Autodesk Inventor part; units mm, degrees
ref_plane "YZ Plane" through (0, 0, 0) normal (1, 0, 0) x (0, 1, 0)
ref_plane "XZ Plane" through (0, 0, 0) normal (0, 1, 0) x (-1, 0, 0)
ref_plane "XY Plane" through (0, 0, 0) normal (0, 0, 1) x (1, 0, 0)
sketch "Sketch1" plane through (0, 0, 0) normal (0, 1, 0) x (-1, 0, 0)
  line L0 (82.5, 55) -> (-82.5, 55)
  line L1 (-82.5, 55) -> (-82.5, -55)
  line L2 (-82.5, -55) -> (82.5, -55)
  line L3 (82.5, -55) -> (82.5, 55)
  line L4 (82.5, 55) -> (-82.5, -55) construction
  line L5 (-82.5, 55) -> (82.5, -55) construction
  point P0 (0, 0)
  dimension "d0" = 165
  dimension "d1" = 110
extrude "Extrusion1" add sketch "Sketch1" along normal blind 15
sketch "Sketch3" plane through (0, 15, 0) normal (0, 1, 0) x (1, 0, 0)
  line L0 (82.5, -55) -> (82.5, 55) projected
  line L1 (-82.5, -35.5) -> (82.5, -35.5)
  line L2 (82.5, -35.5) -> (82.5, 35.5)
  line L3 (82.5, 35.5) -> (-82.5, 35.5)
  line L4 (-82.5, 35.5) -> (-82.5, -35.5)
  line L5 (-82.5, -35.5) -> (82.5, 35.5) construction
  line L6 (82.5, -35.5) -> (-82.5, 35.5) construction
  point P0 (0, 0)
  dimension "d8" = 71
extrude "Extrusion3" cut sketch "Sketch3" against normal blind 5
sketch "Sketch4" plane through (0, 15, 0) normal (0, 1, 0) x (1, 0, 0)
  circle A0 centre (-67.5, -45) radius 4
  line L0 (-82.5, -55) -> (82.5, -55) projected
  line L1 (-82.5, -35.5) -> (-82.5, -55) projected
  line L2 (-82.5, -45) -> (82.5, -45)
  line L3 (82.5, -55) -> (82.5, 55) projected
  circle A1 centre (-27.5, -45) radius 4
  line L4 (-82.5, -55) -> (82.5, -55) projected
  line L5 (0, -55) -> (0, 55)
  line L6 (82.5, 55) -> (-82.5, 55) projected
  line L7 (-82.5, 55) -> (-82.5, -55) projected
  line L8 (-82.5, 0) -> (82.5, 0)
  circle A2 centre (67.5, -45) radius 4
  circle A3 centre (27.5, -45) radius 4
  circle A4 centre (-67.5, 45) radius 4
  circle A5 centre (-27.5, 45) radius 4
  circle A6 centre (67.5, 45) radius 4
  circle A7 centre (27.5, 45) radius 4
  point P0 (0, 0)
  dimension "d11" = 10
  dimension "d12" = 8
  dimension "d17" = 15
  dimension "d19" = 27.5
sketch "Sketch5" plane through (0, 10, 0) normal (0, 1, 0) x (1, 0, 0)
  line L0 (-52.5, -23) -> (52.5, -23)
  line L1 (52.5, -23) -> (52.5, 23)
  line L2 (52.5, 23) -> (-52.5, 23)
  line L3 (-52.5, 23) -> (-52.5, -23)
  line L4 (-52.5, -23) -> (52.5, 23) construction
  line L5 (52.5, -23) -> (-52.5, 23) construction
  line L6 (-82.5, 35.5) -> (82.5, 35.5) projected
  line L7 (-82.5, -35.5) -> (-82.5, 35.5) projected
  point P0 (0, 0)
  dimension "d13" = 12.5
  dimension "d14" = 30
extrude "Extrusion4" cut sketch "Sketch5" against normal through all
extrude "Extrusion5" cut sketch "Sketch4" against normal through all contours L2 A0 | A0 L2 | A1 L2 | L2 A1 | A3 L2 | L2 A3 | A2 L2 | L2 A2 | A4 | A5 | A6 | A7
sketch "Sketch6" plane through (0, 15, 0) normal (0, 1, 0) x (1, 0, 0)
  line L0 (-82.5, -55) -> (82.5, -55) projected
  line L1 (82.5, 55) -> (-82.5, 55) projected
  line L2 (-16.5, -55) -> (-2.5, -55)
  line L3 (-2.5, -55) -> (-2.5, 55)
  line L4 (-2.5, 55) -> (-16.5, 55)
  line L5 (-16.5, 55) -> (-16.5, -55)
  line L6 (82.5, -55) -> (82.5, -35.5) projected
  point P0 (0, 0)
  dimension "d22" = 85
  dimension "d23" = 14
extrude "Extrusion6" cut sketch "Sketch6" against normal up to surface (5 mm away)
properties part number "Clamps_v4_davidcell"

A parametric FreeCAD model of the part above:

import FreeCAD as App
import Part
import Sketcher

doc = App.newDocument("Part")
body = doc.addObject("PartDesign::Body", "Body")

sketch1 = body.newObject("Sketcher::SketchObject", "Sketch")
sketch1.AttachmentSupport = (doc.getObject("XZ_Plane"), [""])
sketch1.MapMode = "FlatFace"
sketch1.addGeometry(Part.LineSegment(App.Vector(-82.5, -55, 0), App.Vector(-82.5, 55, 0)), False)
sketch1.addGeometry(Part.LineSegment(App.Vector(-82.5, 55, 0), App.Vector(82.5, 55, 0)), False)
sketch1.addGeometry(Part.LineSegment(App.Vector(82.5, 55, 0), App.Vector(82.5, -55, 0)), False)
sketch1.addGeometry(Part.LineSegment(App.Vector(82.5, -55, 0), App.Vector(-82.5, -55, 0)), False)
sketch1.addConstraint(Sketcher.Constraint("Coincident", 0, 2, 1, 1))
sketch1.addConstraint(Sketcher.Constraint("Coincident", 1, 2, 2, 1))
sketch1.addConstraint(Sketcher.Constraint("Coincident", 2, 2, 3, 1))
sketch1.addConstraint(Sketcher.Constraint("Coincident", 3, 2, 0, 1))
sketch1.addConstraint(Sketcher.Constraint("Vertical", 0))
sketch1.addConstraint(Sketcher.Constraint("Horizontal", 1))
sketch1.addConstraint(Sketcher.Constraint("Vertical", 2))
sketch1.addConstraint(Sketcher.Constraint("Horizontal", 3))
sketch1.addConstraint(Sketcher.Constraint("Symmetric", 0, 2, 2, 2, -1, 1))
sketch1.addConstraint(Sketcher.Constraint("DistanceX", 1, 1, 1, 2, 165.0))
sketch1.addConstraint(Sketcher.Constraint("DistanceY", 0, 1, 0, 2, 110.0))
pad1 = body.newObject("PartDesign::Pad", "Pad")
pad1.Profile = sketch1
pad1.Length = 15
pad1.Reversed = True

sketch2 = body.newObject("Sketcher::SketchObject", "Sketch001")
sketch2.AttachmentSupport = (doc.getObject("XZ_Plane"), [""])
sketch2.MapMode = "FlatFace"
sketch2.AttachmentOffset = App.Placement(App.Vector(0, 0, -15), App.Rotation())
sketch2.addGeometry(Part.LineSegment(App.Vector(-82.5, 35.5, 0), App.Vector(82.5, 35.5, 0)), False)
sketch2.addGeometry(Part.LineSegment(App.Vector(82.5, 35.5, 0), App.Vector(82.5, -35.5, 0)), False)
sketch2.addGeometry(Part.LineSegment(App.Vector(82.5, -35.5, 0), App.Vector(-82.5, -35.5, 0)), False)
sketch2.addGeometry(Part.LineSegment(App.Vector(-82.5, -35.5, 0), App.Vector(-82.5, 35.5, 0)), False)
sketch2.addConstraint(Sketcher.Constraint("Coincident", 0, 2, 1, 1))
sketch2.addConstraint(Sketcher.Constraint("Coincident", 1, 2, 2, 1))
sketch2.addConstraint(Sketcher.Constraint("Coincident", 2, 2, 3, 1))
sketch2.addConstraint(Sketcher.Constraint("Coincident", 3, 2, 0, 1))
sketch2.addConstraint(Sketcher.Constraint("Horizontal", 0))
sketch2.addConstraint(Sketcher.Constraint("Vertical", 1))
sketch2.addConstraint(Sketcher.Constraint("Horizontal", 2))
sketch2.addConstraint(Sketcher.Constraint("Vertical", 3))
sketch2.addConstraint(Sketcher.Constraint("Symmetric", 0, 2, 2, 2, -1, 1))
sketch2.addConstraint(Sketcher.Constraint("DistanceY", 1, 2, 1, 1, 71.0))
sketch2.addConstraint(Sketcher.Constraint("DistanceX", 0, 1, 0, 2, 165.0))
pocket1 = body.newObject("PartDesign::Pocket", "Pocket")
pocket1.Profile = sketch2
pocket1.Length = 5
pocket1.Reversed = True

sketch3 = body.newObject("Sketcher::SketchObject", "Sketch002")
sketch3.AttachmentSupport = (doc.getObject("XZ_Plane"), [""])
sketch3.MapMode = "FlatFace"
sketch3.AttachmentOffset = App.Placement(App.Vector(0, 0, -10), App.Rotation())
sketch3.addGeometry(Part.LineSegment(App.Vector(-52.5, -23, 0), App.Vector(-52.5, 23, 0)), False)
sketch3.addGeometry(Part.LineSegment(App.Vector(-52.5, 23, 0), App.Vector(52.5, 23, 0)), False)
sketch3.addGeometry(Part.LineSegment(App.Vector(52.5, 23, 0), App.Vector(52.5, -23, 0)), False)
sketch3.addGeometry(Part.LineSegment(App.Vector(52.5, -23, 0), App.Vector(-52.5, -23, 0)), False)
sketch3.addConstraint(Sketcher.Constraint("Coincident", 0, 2, 1, 1))
sketch3.addConstraint(Sketcher.Constraint("Coincident", 1, 2, 2, 1))
sketch3.addConstraint(Sketcher.Constraint("Coincident", 2, 2, 3, 1))
sketch3.addConstraint(Sketcher.Constraint("Coincident", 3, 2, 0, 1))
sketch3.addConstraint(Sketcher.Constraint("Vertical", 0))
sketch3.addConstraint(Sketcher.Constraint("Horizontal", 1))
sketch3.addConstraint(Sketcher.Constraint("Vertical", 2))
sketch3.addConstraint(Sketcher.Constraint("Horizontal", 3))
sketch3.addConstraint(Sketcher.Constraint("Symmetric", 0, 2, 2, 2, -1, 1))
sketch3.addConstraint(Sketcher.Constraint("DistanceX", 1, 1, 1, 2, 105.0))
sketch3.addConstraint(Sketcher.Constraint("DistanceY", 0, 1, 0, 2, 46.0))
pocket2 = body.newObject("PartDesign::Pocket", "Pocket001")
pocket2.Profile = sketch3
pocket2.Type = "ThroughAll"
pocket2.Reversed = True

sketch4 = body.newObject("Sketcher::SketchObject", "Sketch003")
sketch4.AttachmentSupport = (doc.getObject("XZ_Plane"), [""])
sketch4.MapMode = "FlatFace"
sketch4.AttachmentOffset = App.Placement(App.Vector(0, 0, -15), App.Rotation())
sketch4.addGeometry(Part.Circle(App.Vector(-67.5, 45, 0), App.Vector(0, 0, 1), 4), False)
sketch4.addGeometry(Part.Circle(App.Vector(-27.5, 45, 0), App.Vector(0, 0, 1), 4), False)
sketch4.addGeometry(Part.Circle(App.Vector(27.5, 45, 0), App.Vector(0, 0, 1), 4), False)
sketch4.addGeometry(Part.Circle(App.Vector(67.5, 45, 0), App.Vector(0, 0, 1), 4), False)
sketch4.addGeometry(Part.Circle(App.Vector(-67.5, -45, 0), App.Vector(0, 0, 1), 4), False)
sketch4.addGeometry(Part.Circle(App.Vector(-27.5, -45, 0), App.Vector(0, 0, 1), 4), False)
sketch4.addGeometry(Part.Circle(App.Vector(67.5, -45, 0), App.Vector(0, 0, 1), 4), False)
sketch4.addGeometry(Part.Circle(App.Vector(27.5, -45, 0), App.Vector(0, 0, 1), 4), False)
sketch4.addConstraint(Sketcher.Constraint("Equal", 0, 1))
sketch4.addConstraint(Sketcher.Constraint("Equal", 1, 2))
sketch4.addConstraint(Sketcher.Constraint("Equal", 2, 3))
sketch4.addConstraint(Sketcher.Constraint("Equal", 3, 4))
sketch4.addConstraint(Sketcher.Constraint("Equal", 4, 5))
sketch4.addConstraint(Sketcher.Constraint("Equal", 5, 6))
sketch4.addConstraint(Sketcher.Constraint("Equal", 6, 7))
sketch4.addConstraint(Sketcher.Constraint("Symmetric", 3, 3, 4, 3, -1, 1))
sketch4.addConstraint(Sketcher.Constraint("Symmetric", 2, 3, 5, 3, -1, 1))
sketch4.addConstraint(Sketcher.Constraint("Symmetric", 0, 3, 6, 3, -1, 1))
sketch4.addConstraint(Sketcher.Constraint("Symmetric", 1, 3, 7, 3, -1, 1))
sketch4.addConstraint(Sketcher.Constraint("Symmetric", 1, 3, 2, 3, -2))
sketch4.addConstraint(Sketcher.Constraint("Symmetric", 0, 3, 3, 3, -2))
sketch4.addConstraint(Sketcher.Constraint("Horizontal", 0, 3, 1, 3))
sketch4.addConstraint(Sketcher.Constraint("Diameter", 0, 8.0))
sketch4.addConstraint(Sketcher.Constraint("DistanceX", 1, 3, -1, 1, 27.5))
sketch4.addConstraint(Sketcher.Constraint("DistanceY", -1, 1, 0, 3, 45.0))
sketch4.addConstraint(Sketcher.Constraint("DistanceX", 0, 3, 1, 3, 40.0))
pocket3 = body.newObject("PartDesign::Pocket", "Pocket002")
pocket3.Profile = sketch4
pocket3.Type = "ThroughAll"
pocket3.Reversed = True

sketch5 = body.newObject("Sketcher::SketchObject", "Sketch004")
sketch5.AttachmentSupport = (doc.getObject("XZ_Plane"), [""])
sketch5.MapMode = "FlatFace"
sketch5.AttachmentOffset = App.Placement(App.Vector(0, 0, -15), App.Rotation())
sketch5.addGeometry(Part.LineSegment(App.Vector(-16.5, -55, 0), App.Vector(-16.5, 55, 0)), False)
sketch5.addGeometry(Part.LineSegment(App.Vector(-16.5, 55, 0), App.Vector(-2.5, 55, 0)), False)
sketch5.addGeometry(Part.LineSegment(App.Vector(-2.5, 55, 0), App.Vector(-2.5, -55, 0)), False)
sketch5.addGeometry(Part.LineSegment(App.Vector(-2.5, -55, 0), App.Vector(-16.5, -55, 0)), False)
sketch5.addConstraint(Sketcher.Constraint("Coincident", 0, 2, 1, 1))
sketch5.addConstraint(Sketcher.Constraint("Coincident", 1, 2, 2, 1))
sketch5.addConstraint(Sketcher.Constraint("Coincident", 2, 2, 3, 1))
sketch5.addConstraint(Sketcher.Constraint("Coincident", 3, 2, 0, 1))
sketch5.addConstraint(Sketcher.Constraint("Vertical", 0))
sketch5.addConstraint(Sketcher.Constraint("Horizontal", 1))
sketch5.addConstraint(Sketcher.Constraint("Vertical", 2))
sketch5.addConstraint(Sketcher.Constraint("Horizontal", 3))
sketch5.addConstraint(Sketcher.Constraint("DistanceX", 1, 1, 1, 2, 14.0))
sketch5.addConstraint(Sketcher.Constraint("DistanceY", 0, 1, 0, 2, 110.0))
sketch5.addConstraint(Sketcher.Constraint("DistanceY", -1, 1, 0, 2, 55.0))
sketch5.addConstraint(Sketcher.Constraint("DistanceX", 0, 2, -1, 1, 16.5))
pocket4 = body.newObject("PartDesign::Pocket", "Pocket003")
pocket4.Profile = sketch5
pocket4.Length = 5
pocket4.Reversed = True

doc.recompute()
